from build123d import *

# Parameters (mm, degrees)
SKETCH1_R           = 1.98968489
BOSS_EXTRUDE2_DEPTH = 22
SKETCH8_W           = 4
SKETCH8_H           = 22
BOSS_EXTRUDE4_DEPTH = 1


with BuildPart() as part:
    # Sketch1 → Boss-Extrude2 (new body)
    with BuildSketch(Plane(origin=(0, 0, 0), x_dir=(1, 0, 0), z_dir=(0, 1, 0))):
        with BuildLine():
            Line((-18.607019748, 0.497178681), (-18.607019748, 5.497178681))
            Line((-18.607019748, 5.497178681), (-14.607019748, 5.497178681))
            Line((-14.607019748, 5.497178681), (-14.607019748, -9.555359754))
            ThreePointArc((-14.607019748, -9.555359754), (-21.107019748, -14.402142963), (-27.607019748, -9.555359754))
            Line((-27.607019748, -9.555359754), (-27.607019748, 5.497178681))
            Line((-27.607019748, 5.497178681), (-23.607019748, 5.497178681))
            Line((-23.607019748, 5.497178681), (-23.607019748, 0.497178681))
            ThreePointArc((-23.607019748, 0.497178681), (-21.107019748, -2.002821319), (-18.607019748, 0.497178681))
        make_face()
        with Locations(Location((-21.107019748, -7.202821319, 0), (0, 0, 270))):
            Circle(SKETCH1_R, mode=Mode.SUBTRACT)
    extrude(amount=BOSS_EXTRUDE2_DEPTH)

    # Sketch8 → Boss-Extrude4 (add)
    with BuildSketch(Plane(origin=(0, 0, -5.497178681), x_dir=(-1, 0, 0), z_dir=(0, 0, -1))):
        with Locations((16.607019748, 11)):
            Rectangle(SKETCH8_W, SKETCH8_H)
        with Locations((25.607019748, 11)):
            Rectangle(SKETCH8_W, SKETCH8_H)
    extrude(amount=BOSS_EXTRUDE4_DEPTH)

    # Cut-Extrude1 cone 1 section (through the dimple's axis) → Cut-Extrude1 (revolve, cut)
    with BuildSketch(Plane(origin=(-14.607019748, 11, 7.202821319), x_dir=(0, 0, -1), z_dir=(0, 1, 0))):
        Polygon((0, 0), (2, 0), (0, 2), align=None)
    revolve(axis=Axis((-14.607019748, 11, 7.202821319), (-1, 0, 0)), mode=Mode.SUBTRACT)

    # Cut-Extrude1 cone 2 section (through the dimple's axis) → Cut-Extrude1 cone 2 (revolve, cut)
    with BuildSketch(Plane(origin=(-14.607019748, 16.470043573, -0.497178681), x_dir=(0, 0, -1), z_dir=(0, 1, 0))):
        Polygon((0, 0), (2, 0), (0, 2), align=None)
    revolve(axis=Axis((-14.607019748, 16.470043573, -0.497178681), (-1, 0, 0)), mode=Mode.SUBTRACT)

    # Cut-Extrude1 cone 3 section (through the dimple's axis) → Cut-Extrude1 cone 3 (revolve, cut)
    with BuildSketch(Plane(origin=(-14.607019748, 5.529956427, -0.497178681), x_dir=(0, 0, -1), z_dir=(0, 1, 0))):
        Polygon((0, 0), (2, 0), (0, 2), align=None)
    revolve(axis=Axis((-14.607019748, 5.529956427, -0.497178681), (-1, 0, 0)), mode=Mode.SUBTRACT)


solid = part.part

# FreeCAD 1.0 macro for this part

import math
import FreeCAD as App
import Part
import Sketcher

V = App.Vector


def add_polygon(sketch, points):
    """Adds a closed chain of lines whose ends are joined by coincident constraints."""
    first, n = sketch.GeometryCount, len(points)
    for a, b in zip(points, points[1:] + points[:1]):
        sketch.addGeometry(Part.LineSegment(App.Vector(*a, 0), App.Vector(*b, 0)), False)
    for i in range(n):
        sketch.addConstraint(Sketcher.Constraint("Coincident", first + i, 2, first + (i + 1) % n, 1))

doc = App.newDocument("Part")
body = doc.addObject("PartDesign::Body", "Body")

# Sketch on XZ plane
sketch1 = body.newObject("Sketcher::SketchObject", "Sketch")
sketch1.AttachmentSupport = (doc.getObject("XZ_Plane"), [""])
sketch1.MapMode = "FlatFace"
sketch1.addGeometry(Part.LineSegment(V(-18.6, -5.5, 0), V(-18.6, -0.5, 0)), False)
sketch1.addGeometry(Part.ArcOfCircle(Part.Circle(V(-21.1, -0.5, 0), V(0, 0, 1), 2.5), math.radians(0), math.radians(180)), False)
sketch1.addGeometry(Part.LineSegment(V(-23.6, -0.5, 0), V(-23.6, -5.5, 0)), False)
sketch1.addGeometry(Part.LineSegment(V(-23.6, -5.5, 0), V(-27.6, -5.5, 0)), False)
sketch1.addGeometry(Part.LineSegment(V(-27.6, -5.5, 0), V(-27.6, 9.6, 0)), False)
sketch1.addGeometry(Part.ArcOfCircle(Part.Circle(V(-21.1, 7.6, 0), V(0, 0, 1), 6.8), math.radians(17), math.radians(163)), False)
sketch1.addGeometry(Part.LineSegment(V(-14.6, 9.6, 0), V(-14.6, -5.5, 0)), False)
sketch1.addGeometry(Part.LineSegment(V(-14.6, -5.5, 0), V(-18.6, -5.5, 0)), False)
sketch1.addGeometry(Part.Circle(V(-21.1, 7.2, 0), V(0, 0, 1), 2), False)
sketch1.addConstraint(Sketcher.Constraint("Tangent", 0, 2, 1, 1))
sketch1.addConstraint(Sketcher.Constraint("Tangent", 1, 2, 2, 1))
sketch1.addConstraint(Sketcher.Constraint("Coincident", 2, 2, 3, 1))
sketch1.addConstraint(Sketcher.Constraint("Coincident", 3, 2, 4, 1))
sketch1.addConstraint(Sketcher.Constraint("Coincident", 4, 2, 5, 2))
sketch1.addConstraint(Sketcher.Constraint("Coincident", 5, 1, 6, 1))
sketch1.addConstraint(Sketcher.Constraint("Coincident", 6, 2, 7, 1))
sketch1.addConstraint(Sketcher.Constraint("Coincident", 7, 2, 0, 1))
sketch1.addConstraint(Sketcher.Constraint("Vertical", 0))
sketch1.addConstraint(Sketcher.Constraint("Vertical", 2))
sketch1.addConstraint(Sketcher.Constraint("Horizontal", 3))
sketch1.addConstraint(Sketcher.Constraint("Vertical", 4))
sketch1.addConstraint(Sketcher.Constraint("Vertical", 6))
sketch1.addConstraint(Sketcher.Constraint("Horizontal", 7))
sketch1.addConstraint(Sketcher.Constraint("Horizontal", 4, 2, 5, 1))
sketch1.addConstraint(Sketcher.Constraint("Horizontal", 3, 2, 6, 2))
sketch1.addConstraint(Sketcher.Constraint("Vertical", 1, 3, 5, 3))
sketch1.addConstraint(Sketcher.Constraint("Vertical", 5, 3, 8, 3))
sketch1.addConstraint(Sketcher.Constraint("Radius", 1, 2.5))
sketch1.addConstraint(Sketcher.Constraint("DistanceX", 3, 2, 3, 1, 4.0))
sketch1.addConstraint(Sketcher.Constraint("DistanceY", 0, 1, 0, 2, 5.0))
sketch1.addConstraint(Sketcher.Constraint("DistanceY", 1, 3, 8, 3, 7.7))
sketch1.addConstraint(Sketcher.Constraint("Diameter", 8, 3.97937))
sketch1.addConstraint(Sketcher.Constraint("Radius", 5, 6.781953))
sketch1.addConstraint(Sketcher.Constraint("DistanceY", 4, 1, 4, 2, 15.052538))
sketch1.addConstraint(Sketcher.Constraint("DistanceX", 1, 3, -1, 1, 21.10702))
sketch1.addConstraint(Sketcher.Constraint("DistanceY", 1, 3, -1, 1, 0.497179))
pad1 = body.newObject("PartDesign::Pad", "Pad")
pad1.Profile = sketch1
pad1.Length = 22
pad1.Reversed = True

# Sketch on XY plane
sketch2 = body.newObject("Sketcher::SketchObject", "Sketch001")
sketch2.AttachmentSupport = (doc.getObject("XY_Plane"), [""])
sketch2.MapMode = "FlatFace"
sketch2.AttachmentOffset = App.Placement(V(0, 0, -5.497179), App.Rotation())
add_polygon(sketch2, [(-14.6, 22), (-14.6, 0), (-18.6, 0), (-18.6, 22)])  # lines 0-3
add_polygon(sketch2, [(-23.6, 22), (-23.6, 0), (-27.6, 0), (-27.6, 22)])  # lines 4-7
sketch2.addConstraint(Sketcher.Constraint("Vertical", 0))
sketch2.addConstraint(Sketcher.Constraint("Horizontal", 1))
sketch2.addConstraint(Sketcher.Constraint("Vertical", 2))
sketch2.addConstraint(Sketcher.Constraint("Horizontal", 3))
sketch2.addConstraint(Sketcher.Constraint("Vertical", 4))
sketch2.addConstraint(Sketcher.Constraint("Horizontal", 5))
sketch2.addConstraint(Sketcher.Constraint("Vertical", 6))
sketch2.addConstraint(Sketcher.Constraint("Horizontal", 7))
sketch2.addConstraint(Sketcher.Constraint("PointOnObject", 0, 2, -1))
sketch2.addConstraint(Sketcher.Constraint("PointOnObject", 4, 2, -1))
sketch2.addConstraint(Sketcher.Constraint("Horizontal", 3, 2, 6, 2))
sketch2.addConstraint(Sketcher.Constraint("Equal", 3, 5))
sketch2.addConstraint(Sketcher.Constraint("DistanceX", 1, 2, 1, 1, 4.0))
sketch2.addConstraint(Sketcher.Constraint("DistanceY", 0, 2, 0, 1, 22.0))
sketch2.addConstraint(Sketcher.Constraint("DistanceX", 4, 2, 1, 2, 5.0))
sketch2.addConstraint(Sketcher.Constraint("DistanceX", 0, 2, -1, 1, 14.60702))
pad2 = body.newObject("PartDesign::Pad", "Pad001")
pad2.Profile = sketch2
pad2.Length = 1
pad2.Reversed = True

# Sketch on XZ plane
sketch3 = body.newObject("Sketcher::SketchObject", "Sketch002")
sketch3.AttachmentSupport = (doc.getObject("XZ_Plane"), [""])
sketch3.MapMode = "FlatFace"
sketch3.AttachmentOffset = App.Placement(V(0, 0, -11), App.Rotation())
add_polygon(sketch3, [(-14.6, 7.2), (-14.6, 5.2), (-16.6, 7.2)])  # lines 0-2
sketch3.addGeometry(Part.LineSegment(V(-14.6, 7.2, 0), V(-16.6, 7.2, 0)), True)  # axis
sketch3.addConstraint(Sketcher.Constraint("Vertical", 0))
sketch3.addConstraint(Sketcher.Constraint("Horizontal", 2))
sketch3.addConstraint(Sketcher.Constraint("Horizontal", 3))
sketch3.addConstraint(Sketcher.Constraint("Coincident", 3, 1, 2, 2))
sketch3.addConstraint(Sketcher.Constraint("Equal", 2, 3))
sketch3.addConstraint(Sketcher.Constraint("Equal", 3, 0))
sketch3.addConstraint(Sketcher.Constraint("DistanceX", 2, 1, 2, 2, 2.0))
sketch3.addConstraint(Sketcher.Constraint("DistanceX", 0, 2, -1, 1, 14.60702))
sketch3.addConstraint(Sketcher.Constraint("DistanceY", -1, 1, 0, 2, 5.202821))
groove = body.newObject("PartDesign::Groove", "Groove")
groove.Profile = sketch3
groove.ReferenceAxis = (sketch3, ["Axis0"])
groove.Angle = 360

# Sketch on XZ plane
sketch4 = body.newObject("Sketcher::SketchObject", "Sketch003")
sketch4.AttachmentSupport = (doc.getObject("XZ_Plane"), [""])
sketch4.MapMode = "FlatFace"
sketch4.AttachmentOffset = App.Placement(V(0, 0, -16.470044), App.Rotation())
add_polygon(sketch4, [(-14.6, -0.5), (-14.6, -2.5), (-16.6, -0.5)])  # lines 0-2
sketch4.addGeometry(Part.LineSegment(V(-14.6, -0.5, 0), V(-16.6, -0.5, 0)), True)  # axis
sketch4.addConstraint(Sketcher.Constraint("Vertical", 0))
sketch4.addConstraint(Sketcher.Constraint("Horizontal", 2))
sketch4.addConstraint(Sketcher.Constraint("Horizontal", 3))
sketch4.addConstraint(Sketcher.Constraint("Coincident", 3, 1, 2, 2))
sketch4.addConstraint(Sketcher.Constraint("Equal", 2, 3))
sketch4.addConstraint(Sketcher.Constraint("Equal", 3, 0))
sketch4.addConstraint(Sketcher.Constraint("DistanceX", 2, 1, 2, 2, 2.0))
sketch4.addConstraint(Sketcher.Constraint("DistanceX", 0, 2, -1, 1, 14.60702))
sketch4.addConstraint(Sketcher.Constraint("DistanceY", 0, 2, -1, 1, 2.497179))
groove2 = body.newObject("PartDesign::Groove", "Groove001")
groove2.Profile = sketch4
groove2.ReferenceAxis = (sketch4, ["Axis0"])
groove2.Angle = 360

# Sketch on XZ plane
sketch5 = body.newObject("Sketcher::SketchObject", "Sketch004")
sketch5.AttachmentSupport = (doc.getObject("XZ_Plane"), [""])
sketch5.MapMode = "FlatFace"
sketch5.AttachmentOffset = App.Placement(V(0, 0, -5.529956), App.Rotation())
add_polygon(sketch5, [(-14.6, -0.5), (-14.6, -2.5), (-16.6, -0.5)])  # lines 0-2
sketch5.addGeometry(Part.LineSegment(V(-14.6, -0.5, 0), V(-16.6, -0.5, 0)), True)  # axis
sketch5.addConstraint(Sketcher.Constraint("Vertical", 0))
sketch5.addConstraint(Sketcher.Constraint("Horizontal", 2))
sketch5.addConstraint(Sketcher.Constraint("Horizontal", 3))
sketch5.addConstraint(Sketcher.Constraint("Coincident", 3, 1, 2, 2))
sketch5.addConstraint(Sketcher.Constraint("Equal", 2, 3))
sketch5.addConstraint(Sketcher.Constraint("Equal", 3, 0))
sketch5.addConstraint(Sketcher.Constraint("DistanceX", 2, 1, 2, 2, 2.0))
sketch5.addConstraint(Sketcher.Constraint("DistanceX", 0, 2, -1, 1, 14.60702))
sketch5.addConstraint(Sketcher.Constraint("DistanceY", 0, 2, -1, 1, 2.497179))
groove3 = body.newObject("PartDesign::Groove", "Groove002")
groove3.Profile = sketch5
groove3.ReferenceAxis = (sketch5, ["Axis0"])
groove3.Angle = 360

doc.recompute()
